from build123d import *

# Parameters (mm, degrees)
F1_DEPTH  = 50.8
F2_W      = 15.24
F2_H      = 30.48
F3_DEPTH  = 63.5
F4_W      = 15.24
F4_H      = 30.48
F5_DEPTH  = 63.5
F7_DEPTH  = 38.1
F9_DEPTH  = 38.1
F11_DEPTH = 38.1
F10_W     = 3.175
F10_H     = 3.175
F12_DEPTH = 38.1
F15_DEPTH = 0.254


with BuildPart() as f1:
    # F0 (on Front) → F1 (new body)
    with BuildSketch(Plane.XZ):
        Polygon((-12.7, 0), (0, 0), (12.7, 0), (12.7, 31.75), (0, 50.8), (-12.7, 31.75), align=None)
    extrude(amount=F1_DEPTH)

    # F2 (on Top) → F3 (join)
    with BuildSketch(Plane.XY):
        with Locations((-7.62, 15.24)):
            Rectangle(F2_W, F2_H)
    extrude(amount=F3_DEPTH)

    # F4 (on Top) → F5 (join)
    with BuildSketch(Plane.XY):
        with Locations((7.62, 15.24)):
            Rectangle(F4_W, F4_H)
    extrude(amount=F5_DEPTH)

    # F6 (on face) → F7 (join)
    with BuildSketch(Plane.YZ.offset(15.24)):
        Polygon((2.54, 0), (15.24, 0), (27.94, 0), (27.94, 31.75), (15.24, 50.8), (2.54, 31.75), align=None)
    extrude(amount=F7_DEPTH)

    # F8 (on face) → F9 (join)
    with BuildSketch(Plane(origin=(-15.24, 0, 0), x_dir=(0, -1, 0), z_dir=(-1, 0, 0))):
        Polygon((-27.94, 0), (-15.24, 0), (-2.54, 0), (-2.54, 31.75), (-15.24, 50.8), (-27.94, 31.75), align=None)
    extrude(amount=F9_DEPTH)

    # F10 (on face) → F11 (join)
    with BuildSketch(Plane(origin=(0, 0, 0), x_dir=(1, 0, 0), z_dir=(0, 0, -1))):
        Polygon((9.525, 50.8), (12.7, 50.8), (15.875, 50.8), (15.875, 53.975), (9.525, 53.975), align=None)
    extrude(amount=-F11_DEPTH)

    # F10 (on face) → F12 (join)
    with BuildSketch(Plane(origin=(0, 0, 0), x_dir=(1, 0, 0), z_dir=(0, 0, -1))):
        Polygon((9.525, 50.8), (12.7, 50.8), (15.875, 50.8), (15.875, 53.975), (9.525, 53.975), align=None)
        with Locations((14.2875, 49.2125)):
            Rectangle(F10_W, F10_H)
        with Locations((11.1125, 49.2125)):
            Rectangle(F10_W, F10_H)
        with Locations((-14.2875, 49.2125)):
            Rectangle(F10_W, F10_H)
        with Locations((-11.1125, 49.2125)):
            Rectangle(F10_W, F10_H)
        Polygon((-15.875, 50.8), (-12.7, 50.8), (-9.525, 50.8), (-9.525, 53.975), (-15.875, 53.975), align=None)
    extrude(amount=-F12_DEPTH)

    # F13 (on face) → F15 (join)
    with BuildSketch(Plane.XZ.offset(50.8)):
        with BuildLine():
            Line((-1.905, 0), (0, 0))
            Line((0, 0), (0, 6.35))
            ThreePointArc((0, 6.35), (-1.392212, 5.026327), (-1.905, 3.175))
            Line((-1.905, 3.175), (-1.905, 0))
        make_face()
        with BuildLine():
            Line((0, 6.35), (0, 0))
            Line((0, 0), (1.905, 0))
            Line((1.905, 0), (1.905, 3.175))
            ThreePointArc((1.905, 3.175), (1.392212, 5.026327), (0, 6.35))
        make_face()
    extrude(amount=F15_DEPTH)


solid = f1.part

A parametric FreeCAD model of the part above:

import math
import FreeCAD as App
import Part
import Sketcher

V = App.Vector
Q = App.Units.Quantity

doc = App.newDocument("Part")
params = doc.addObject("Spreadsheet::Sheet", "Params")
for row, (alias, value) in enumerate([
    ("sketch1_width", "1 in"),
    ("sketch1_height", "1.25 in"),
    ("pad1_length", "2 in"),
    ("sketch2_width", "0.6 in"),
    ("sketch2_height", "1.2 in"),
    ("pad2_length", "2.5 in"),
    ("sketch3_width", "0.6 in"),
    ("sketch3_height", "1.2 in"),
    ("pad3_length", "2.5 in"),
    ("sketch4_width", "1 in"),
    ("sketch4_height", "1.25 in"),
    ("pad4_length", "1.5 in"),
    ("sketch5_width", "1 in"),
    ("sketch5_height", "1.25 in"),
    ("pad5_length", "1.5 in"),
    ("sketch6_width", "0.25 in"),
    ("sketch6_height", "0.125 in"),
    ("pad6_length", "1.5 in"),
    ("sketch7_width", "0.25 in"),
    ("pad7_length", "1.5 in"),
    ("sketch8_width", "0.15 in"),
    ("sketch8_height", "0.125 in"),
    ("pad8_length", "0.01 in"),
], start=1):
    params.set(f"A{row}", alias)
    params.set(f"B{row}", "=" + value)
    params.setAlias(f"B{row}", alias)

body = doc.addObject("PartDesign::Body", "Body")

# Sketch on XZ plane
sketch1 = body.newObject("Sketcher::SketchObject", "Sketch")
sketch1.AttachmentSupport = (doc.getObject("XZ_Plane"), [""])
sketch1.MapMode = "FlatFace"
sketch1.addGeometry([
    Part.LineSegment(V(-13, 0, 0), V(13, 0, 0)),  # 0
    Part.LineSegment(V(13, 0, 0), V(13, 32, 0)),  # 1
    Part.LineSegment(V(13, 32, 0), V(0, 51, 0)),  # 2
    Part.LineSegment(V(0, 51, 0), V(-13, 32, 0)),  # 3
    Part.LineSegment(V(-13, 32, 0), V(-13, 0, 0)),  # 4
], False)
sketch1.addConstraint([
    Sketcher.Constraint("Coincident", 0, 2, 1, 1),
    Sketcher.Constraint("Coincident", 1, 2, 2, 1),
    Sketcher.Constraint("Coincident", 2, 2, 3, 1),
    Sketcher.Constraint("Coincident", 3, 2, 4, 1),
    Sketcher.Constraint("Coincident", 4, 2, 0, 1),
    Sketcher.Constraint("Horizontal", 0),
    Sketcher.Constraint("Vertical", 1),
    Sketcher.Constraint("Vertical", 4),
    Sketcher.Constraint("Symmetric", 0, 2, 4, 2, -1, 1),
    Sketcher.Constraint("PointOnObject", 2, 2, -2),
    Sketcher.Constraint("Horizontal", 1, 2, 3, 2),
    Sketcher.Constraint("DistanceX", 0, 1, 0, 2, Q("1 in")),
    Sketcher.Constraint("DistanceY", -1, 1, 2, 2, Q("2 in")),
    Sketcher.Constraint("DistanceY", 1, 1, 1, 2, Q("1.25 in")),
])
sketch1.setExpression("Constraints[11]", "Params.sketch1_width")
sketch1.setExpression("Constraints[13]", "Params.sketch1_height")
pad1 = body.newObject("PartDesign::Pad", "Pad")
pad1.Profile = sketch1
pad1.setExpression("Length", "Params.pad1_length")

# Sketch on XY plane
sketch2 = body.newObject("Sketcher::SketchObject", "Sketch001")
sketch2.AttachmentSupport = (doc.getObject("XY_Plane"), [""])
sketch2.MapMode = "FlatFace"
sketch2.addGeometry([
    Part.LineSegment(V(-15, 30, 0), V(-15, 0, 0)),
    Part.LineSegment(V(-15, 0, 0), V(0, 0, 0)),
    Part.LineSegment(V(0, 0, 0), V(0, 30, 0)),
    Part.LineSegment(V(0, 30, 0), V(-15, 30, 0)),
], False)
sketch2.addConstraint([
    Sketcher.Constraint("Coincident", 0, 2, 1, 1),
    Sketcher.Constraint("Coincident", 1, 2, 2, 1),
    Sketcher.Constraint("Coincident", 2, 2, 3, 1),
    Sketcher.Constraint("Coincident", 3, 2, 0, 1),
    Sketcher.Constraint("Vertical", 0),
    Sketcher.Constraint("Horizontal", 1),
    Sketcher.Constraint("Vertical", 2),
    Sketcher.Constraint("Horizontal", 3),
    Sketcher.Constraint("Coincident", 1, 2, -1, 1),
    Sketcher.Constraint("DistanceX", 1, 1, 1, 2, Q("0.6 in")),
    Sketcher.Constraint("DistanceY", 0, 2, 0, 1, Q("1.2 in")),
])
sketch2.setExpression("Constraints[9]", "Params.sketch2_width")
sketch2.setExpression("Constraints[10]", "Params.sketch2_height")
pad2 = body.newObject("PartDesign::Pad", "Pad001")
pad2.Profile = sketch2
pad2.setExpression("Length", "Params.pad2_length")

# Sketch on XY plane
sketch3 = body.newObject("Sketcher::SketchObject", "Sketch002")
sketch3.AttachmentSupport = (doc.getObject("XY_Plane"), [""])
sketch3.MapMode = "FlatFace"
sketch3.addGeometry([
    Part.LineSegment(V(0, 30, 0), V(0, 0, 0)),
    Part.LineSegment(V(0, 0, 0), V(15, 0, 0)),
    Part.LineSegment(V(15, 0, 0), V(15, 30, 0)),
    Part.LineSegment(V(15, 30, 0), V(0, 30, 0)),
], False)
sketch3.addConstraint([
    Sketcher.Constraint("Coincident", 0, 2, 1, 1),
    Sketcher.Constraint("Coincident", 1, 2, 2, 1),
    Sketcher.Constraint("Coincident", 2, 2, 3, 1),
    Sketcher.Constraint("Coincident", 3, 2, 0, 1),
    Sketcher.Constraint("Vertical", 0),
    Sketcher.Constraint("Horizontal", 1),
    Sketcher.Constraint("Vertical", 2),
    Sketcher.Constraint("Horizontal", 3),
    Sketcher.Constraint("Coincident", 0, 2, -1, 1),
    Sketcher.Constraint("DistanceX", 1, 1, 1, 2, Q("0.6 in")),
    Sketcher.Constraint("DistanceY", 0, 2, 0, 1, Q("1.2 in")),
])
sketch3.setExpression("Constraints[9]", "Params.sketch3_width")
sketch3.setExpression("Constraints[10]", "Params.sketch3_height")
pad3 = body.newObject("PartDesign::Pad", "Pad002")
pad3.Profile = sketch3
pad3.setExpression("Length", "Params.pad3_length")

# Sketch on YZ plane
sketch4 = body.newObject("Sketcher::SketchObject", "Sketch003")
sketch4.AttachmentSupport = (doc.getObject("YZ_Plane"), [""])
sketch4.MapMode = "FlatFace"
sketch4.AttachmentOffset = App.Placement(V(0, 0, 0.6 * 25.4), App.Rotation())
sketch4.addGeometry([
    Part.LineSegment(V(3, 0, 0), V(28, 0, 0)),  # 0
    Part.LineSegment(V(28, 0, 0), V(28, 32, 0)),  # 1
    Part.LineSegment(V(28, 32, 0), V(15, 51, 0)),  # 2
    Part.LineSegment(V(15, 51, 0), V(3, 32, 0)),  # 3
    Part.LineSegment(V(3, 32, 0), V(3, 0, 0)),  # 4
], False)
sketch4.addConstraint([
    Sketcher.Constraint("Coincident", 0, 2, 1, 1),
    Sketcher.Constraint("Coincident", 1, 2, 2, 1),
    Sketcher.Constraint("Coincident", 2, 2, 3, 1),
    Sketcher.Constraint("Coincident", 3, 2, 4, 1),
    Sketcher.Constraint("Coincident", 4, 2, 0, 1),
    Sketcher.Constraint("Horizontal", 0),
    Sketcher.Constraint("Vertical", 1),
    Sketcher.Constraint("Vertical", 4),
    Sketcher.Constraint("PointOnObject", 0, 2, -1),
    Sketcher.Constraint("Horizontal", 1, 2, 3, 2),
    Sketcher.Constraint("Equal", 2, 3),
    Sketcher.Constraint("DistanceX", 0, 1, 0, 2, Q("1 in")),
    Sketcher.Constraint("DistanceY", -1, 1, 2, 2, Q("2 in")),
    Sketcher.Constraint("DistanceY", 1, 1, 1, 2, Q("1.25 in")),
    Sketcher.Constraint("DistanceX", -1, 1, 0, 2, Q("1.1 in")),
])
sketch4.setExpression("Constraints[11]", "Params.sketch4_width")
sketch4.setExpression("Constraints[13]", "Params.sketch4_height")
pad4 = body.newObject("PartDesign::Pad", "Pad003")
pad4.Profile = sketch4
pad4.setExpression("Length", "Params.pad4_length")

# Sketch on YZ plane
sketch5 = body.newObject("Sketcher::SketchObject", "Sketch004")
sketch5.AttachmentSupport = (doc.getObject("YZ_Plane"), [""])
sketch5.MapMode = "FlatFace"
sketch5.AttachmentOffset = App.Placement(V(0, 0, -0.6 * 25.4), App.Rotation())
sketch5.addGeometry([
    Part.LineSegment(V(28, 0, 0), V(3, 0, 0)),  # 0
    Part.LineSegment(V(3, 0, 0), V(3, 32, 0)),  # 1
    Part.LineSegment(V(3, 32, 0), V(15, 51, 0)),  # 2
    Part.LineSegment(V(15, 51, 0), V(28, 32, 0)),  # 3
    Part.LineSegment(V(28, 32, 0), V(28, 0, 0)),  # 4
], False)
sketch5.addConstraint([
    Sketcher.Constraint("Coincident", 0, 2, 1, 1),
    Sketcher.Constraint("Coincident", 1, 2, 2, 1),
    Sketcher.Constraint("Coincident", 2, 2, 3, 1),
    Sketcher.Constraint("Coincident", 3, 2, 4, 1),
    Sketcher.Constraint("Coincident", 4, 2, 0, 1),
    Sketcher.Constraint("Horizontal", 0),
    Sketcher.Constraint("Vertical", 1),
    Sketcher.Constraint("Vertical", 4),
    Sketcher.Constraint("PointOnObject", 0, 2, -1),
    Sketcher.Constraint("Horizontal", 1, 2, 3, 2),
    Sketcher.Constraint("Equal", 2, 3),
    Sketcher.Constraint("DistanceX", 0, 2, 0, 1, Q("1 in")),
    Sketcher.Constraint("DistanceY", -1, 1, 2, 2, Q("2 in")),
    Sketcher.Constraint("DistanceY", 1, 1, 1, 2, Q("1.25 in")),
    Sketcher.Constraint("DistanceX", -1, 1, 0, 2, Q("0.1 in")),
])
sketch5.setExpression("Constraints[11]", "Params.sketch5_width")
sketch5.setExpression("Constraints[13]", "Params.sketch5_height")
pad5 = body.newObject("PartDesign::Pad", "Pad004")
pad5.Profile = sketch5
pad5.setExpression("Length", "Params.pad5_length")
pad5.Reversed = True

# Sketch on XY plane
sketch6 = body.newObject("Sketcher::SketchObject", "Sketch005")
sketch6.AttachmentSupport = (doc.getObject("XY_Plane"), [""])
sketch6.MapMode = "FlatFace"
sketch6.addGeometry([
    Part.LineSegment(V(9.5, -50.8, 0), V(15.9, -50.8, 0)),
    Part.LineSegment(V(15.9, -50.8, 0), V(15.9, -54, 0)),
    Part.LineSegment(V(15.9, -54, 0), V(9.5, -54, 0)),
    Part.LineSegment(V(9.5, -54, 0), V(9.5, -50.8, 0)),
], False)
sketch6.addConstraint([
    Sketcher.Constraint("Coincident", 0, 2, 1, 1),
    Sketcher.Constraint("Coincident", 1, 2, 2, 1),
    Sketcher.Constraint("Coincident", 2, 2, 3, 1),
    Sketcher.Constraint("Coincident", 3, 2, 0, 1),
    Sketcher.Constraint("Horizontal", 0),
    Sketcher.Constraint("Vertical", 1),
    Sketcher.Constraint("Horizontal", 2),
    Sketcher.Constraint("Vertical", 3),
    Sketcher.Constraint("DistanceY", 0, 2, -1, 1, Q("2 in")),
    Sketcher.Constraint("DistanceX", 0, 1, 0, 2, Q("0.25 in")),
    Sketcher.Constraint("DistanceY", 1, 2, 1, 1, Q("0.125 in")),
    Sketcher.Constraint("DistanceX", -1, 1, 0, 2, Q("0.625 in")),
])
sketch6.setExpression("Constraints[9]", "Params.sketch6_width")
sketch6.setExpression("Constraints[10]", "Params.sketch6_height")
pad6 = body.newObject("PartDesign::Pad", "Pad005")
pad6.Profile = sketch6
pad6.setExpression("Length", "Params.pad6_length")

# Sketch on XY plane
sketch7 = body.newObject("Sketcher::SketchObject", "Sketch006")
sketch7.AttachmentSupport = (doc.getObject("XY_Plane"), [""])
sketch7.MapMode = "FlatFace"
sketch7.addGeometry([
    Part.LineSegment(V(16, -48, 0), V(16, -54, 0)),  # 0
    Part.LineSegment(V(16, -54, 0), V(10, -54, 0)),  # 1
    Part.LineSegment(V(10, -54, 0), V(10, -48, 0)),  # 2
    Part.LineSegment(V(10, -48, 0), V(16, -48, 0)),  # 3
    Part.LineSegment(V(-16, -48, 0), V(-10, -48, 0)),  # 4
    Part.LineSegment(V(-10, -48, 0), V(-10, -54, 0)),  # 5
    Part.LineSegment(V(-10, -54, 0), V(-16, -54, 0)),  # 6
    Part.LineSegment(V(-16, -54, 0), V(-16, -48, 0)),  # 7
], False)
sketch7.addConstraint([
    Sketcher.Constraint("Coincident", 0, 2, 1, 1),
    Sketcher.Constraint("Coincident", 1, 2, 2, 1),
    Sketcher.Constraint("Coincident", 2, 2, 3, 1),
    Sketcher.Constraint("Coincident", 3, 2, 0, 1),
    Sketcher.Constraint("Coincident", 4, 2, 5, 1),
    Sketcher.Constraint("Coincident", 5, 2, 6, 1),
    Sketcher.Constraint("Coincident", 6, 2, 7, 1),
    Sketcher.Constraint("Coincident", 7, 2, 4, 1),
    Sketcher.Constraint("Vertical", 0),
    Sketcher.Constraint("Horizontal", 1),
    Sketcher.Constraint("Vertical", 2),
    Sketcher.Constraint("Horizontal", 3),
    Sketcher.Constraint("Horizontal", 4),
    Sketcher.Constraint("Vertical", 5),
    Sketcher.Constraint("Horizontal", 6),
    Sketcher.Constraint("Vertical", 7),
    Sketcher.Constraint("Symmetric", 2, 2, 4, 2, -2),
    Sketcher.Constraint("Symmetric", 0, 2, 6, 2, -2),
    Sketcher.Constraint("Equal", 6, 0),
    Sketcher.Constraint("DistanceX", 4, 2, 3, 2, Q("1 in")),
    Sketcher.Constraint("DistanceX", 1, 2, 1, 1, Q("0.25 in")),
    Sketcher.Constraint("DistanceY", 0, 2, -1, 1, Q("2.125 in")),
])
sketch7.setExpression("Constraints[20]", "Params.sketch7_width")
pad7 = body.newObject("PartDesign::Pad", "Pad006")
pad7.Profile = sketch7
pad7.setExpression("Length", "Params.pad7_length")

# Sketch on XZ plane
sketch8 = body.newObject("Sketcher::SketchObject", "Sketch007")
sketch8.AttachmentSupport = (doc.getObject("XZ_Plane"), [""])
sketch8.MapMode = "FlatFace"
sketch8.AttachmentOffset = App.Placement(V(0, 0, 2 * 25.4), App.Rotation())
sketch8.addGeometry([
    Part.LineSegment(V(-1.9, 0, 0), V(1.9, 0, 0)),  # 0
    Part.LineSegment(V(1.9, 0, 0), V(1.9, 3.2, 0)),  # 1
    Part.ArcOfCircle(Part.Circle(V(-1.7, 3.2, 0), V(0, 0, 1), 3.6), math.radians(0), math.radians(62)),  # 2
    Part.ArcOfCircle(Part.Circle(V(1.7, 3.2, 0), V(0, 0, 1), 3.6), math.radians(118), math.radians(180)),  # 3
    Part.LineSegment(V(-1.9, 3.2, 0), V(-1.9, 0, 0)),  # 4
], False)
sketch8.addConstraint([
    Sketcher.Constraint("Coincident", 0, 2, 1, 1),
    Sketcher.Constraint("Tangent", 1, 2, 2, 1),
    Sketcher.Constraint("Coincident", 2, 2, 3, 1),
    Sketcher.Constraint("Tangent", 3, 2, 4, 1),
    Sketcher.Constraint("Coincident", 4, 2, 0, 1),
    Sketcher.Constraint("Horizontal", 0),
    Sketcher.Constraint("Vertical", 1),
    Sketcher.Constraint("Vertical", 4),
    Sketcher.Constraint("Equal", 2, 3),
    Sketcher.Constraint("Symmetric", 0, 2, 4, 2, -1, 1),
    Sketcher.Constraint("PointOnObject", 2, 2, -2),
    Sketcher.Constraint("DistanceX", 0, 1, 0, 2, Q("0.15 in")),
    Sketcher.Constraint("DistanceY", 1, 1, 1, 2, Q("0.125 in")),
    Sketcher.Constraint("DistanceY", -1, 1, 2, 2, Q("0.25 in")),
])
sketch8.setExpression("Constraints[11]", "Params.sketch8_width")
sketch8.setExpression("Constraints[12]", "Params.sketch8_height")
pad8 = body.newObject("PartDesign::Pad", "Pad007")
pad8.Profile = sketch8
pad8.setExpression("Length", "Params.pad8_length")

doc.recompute()
